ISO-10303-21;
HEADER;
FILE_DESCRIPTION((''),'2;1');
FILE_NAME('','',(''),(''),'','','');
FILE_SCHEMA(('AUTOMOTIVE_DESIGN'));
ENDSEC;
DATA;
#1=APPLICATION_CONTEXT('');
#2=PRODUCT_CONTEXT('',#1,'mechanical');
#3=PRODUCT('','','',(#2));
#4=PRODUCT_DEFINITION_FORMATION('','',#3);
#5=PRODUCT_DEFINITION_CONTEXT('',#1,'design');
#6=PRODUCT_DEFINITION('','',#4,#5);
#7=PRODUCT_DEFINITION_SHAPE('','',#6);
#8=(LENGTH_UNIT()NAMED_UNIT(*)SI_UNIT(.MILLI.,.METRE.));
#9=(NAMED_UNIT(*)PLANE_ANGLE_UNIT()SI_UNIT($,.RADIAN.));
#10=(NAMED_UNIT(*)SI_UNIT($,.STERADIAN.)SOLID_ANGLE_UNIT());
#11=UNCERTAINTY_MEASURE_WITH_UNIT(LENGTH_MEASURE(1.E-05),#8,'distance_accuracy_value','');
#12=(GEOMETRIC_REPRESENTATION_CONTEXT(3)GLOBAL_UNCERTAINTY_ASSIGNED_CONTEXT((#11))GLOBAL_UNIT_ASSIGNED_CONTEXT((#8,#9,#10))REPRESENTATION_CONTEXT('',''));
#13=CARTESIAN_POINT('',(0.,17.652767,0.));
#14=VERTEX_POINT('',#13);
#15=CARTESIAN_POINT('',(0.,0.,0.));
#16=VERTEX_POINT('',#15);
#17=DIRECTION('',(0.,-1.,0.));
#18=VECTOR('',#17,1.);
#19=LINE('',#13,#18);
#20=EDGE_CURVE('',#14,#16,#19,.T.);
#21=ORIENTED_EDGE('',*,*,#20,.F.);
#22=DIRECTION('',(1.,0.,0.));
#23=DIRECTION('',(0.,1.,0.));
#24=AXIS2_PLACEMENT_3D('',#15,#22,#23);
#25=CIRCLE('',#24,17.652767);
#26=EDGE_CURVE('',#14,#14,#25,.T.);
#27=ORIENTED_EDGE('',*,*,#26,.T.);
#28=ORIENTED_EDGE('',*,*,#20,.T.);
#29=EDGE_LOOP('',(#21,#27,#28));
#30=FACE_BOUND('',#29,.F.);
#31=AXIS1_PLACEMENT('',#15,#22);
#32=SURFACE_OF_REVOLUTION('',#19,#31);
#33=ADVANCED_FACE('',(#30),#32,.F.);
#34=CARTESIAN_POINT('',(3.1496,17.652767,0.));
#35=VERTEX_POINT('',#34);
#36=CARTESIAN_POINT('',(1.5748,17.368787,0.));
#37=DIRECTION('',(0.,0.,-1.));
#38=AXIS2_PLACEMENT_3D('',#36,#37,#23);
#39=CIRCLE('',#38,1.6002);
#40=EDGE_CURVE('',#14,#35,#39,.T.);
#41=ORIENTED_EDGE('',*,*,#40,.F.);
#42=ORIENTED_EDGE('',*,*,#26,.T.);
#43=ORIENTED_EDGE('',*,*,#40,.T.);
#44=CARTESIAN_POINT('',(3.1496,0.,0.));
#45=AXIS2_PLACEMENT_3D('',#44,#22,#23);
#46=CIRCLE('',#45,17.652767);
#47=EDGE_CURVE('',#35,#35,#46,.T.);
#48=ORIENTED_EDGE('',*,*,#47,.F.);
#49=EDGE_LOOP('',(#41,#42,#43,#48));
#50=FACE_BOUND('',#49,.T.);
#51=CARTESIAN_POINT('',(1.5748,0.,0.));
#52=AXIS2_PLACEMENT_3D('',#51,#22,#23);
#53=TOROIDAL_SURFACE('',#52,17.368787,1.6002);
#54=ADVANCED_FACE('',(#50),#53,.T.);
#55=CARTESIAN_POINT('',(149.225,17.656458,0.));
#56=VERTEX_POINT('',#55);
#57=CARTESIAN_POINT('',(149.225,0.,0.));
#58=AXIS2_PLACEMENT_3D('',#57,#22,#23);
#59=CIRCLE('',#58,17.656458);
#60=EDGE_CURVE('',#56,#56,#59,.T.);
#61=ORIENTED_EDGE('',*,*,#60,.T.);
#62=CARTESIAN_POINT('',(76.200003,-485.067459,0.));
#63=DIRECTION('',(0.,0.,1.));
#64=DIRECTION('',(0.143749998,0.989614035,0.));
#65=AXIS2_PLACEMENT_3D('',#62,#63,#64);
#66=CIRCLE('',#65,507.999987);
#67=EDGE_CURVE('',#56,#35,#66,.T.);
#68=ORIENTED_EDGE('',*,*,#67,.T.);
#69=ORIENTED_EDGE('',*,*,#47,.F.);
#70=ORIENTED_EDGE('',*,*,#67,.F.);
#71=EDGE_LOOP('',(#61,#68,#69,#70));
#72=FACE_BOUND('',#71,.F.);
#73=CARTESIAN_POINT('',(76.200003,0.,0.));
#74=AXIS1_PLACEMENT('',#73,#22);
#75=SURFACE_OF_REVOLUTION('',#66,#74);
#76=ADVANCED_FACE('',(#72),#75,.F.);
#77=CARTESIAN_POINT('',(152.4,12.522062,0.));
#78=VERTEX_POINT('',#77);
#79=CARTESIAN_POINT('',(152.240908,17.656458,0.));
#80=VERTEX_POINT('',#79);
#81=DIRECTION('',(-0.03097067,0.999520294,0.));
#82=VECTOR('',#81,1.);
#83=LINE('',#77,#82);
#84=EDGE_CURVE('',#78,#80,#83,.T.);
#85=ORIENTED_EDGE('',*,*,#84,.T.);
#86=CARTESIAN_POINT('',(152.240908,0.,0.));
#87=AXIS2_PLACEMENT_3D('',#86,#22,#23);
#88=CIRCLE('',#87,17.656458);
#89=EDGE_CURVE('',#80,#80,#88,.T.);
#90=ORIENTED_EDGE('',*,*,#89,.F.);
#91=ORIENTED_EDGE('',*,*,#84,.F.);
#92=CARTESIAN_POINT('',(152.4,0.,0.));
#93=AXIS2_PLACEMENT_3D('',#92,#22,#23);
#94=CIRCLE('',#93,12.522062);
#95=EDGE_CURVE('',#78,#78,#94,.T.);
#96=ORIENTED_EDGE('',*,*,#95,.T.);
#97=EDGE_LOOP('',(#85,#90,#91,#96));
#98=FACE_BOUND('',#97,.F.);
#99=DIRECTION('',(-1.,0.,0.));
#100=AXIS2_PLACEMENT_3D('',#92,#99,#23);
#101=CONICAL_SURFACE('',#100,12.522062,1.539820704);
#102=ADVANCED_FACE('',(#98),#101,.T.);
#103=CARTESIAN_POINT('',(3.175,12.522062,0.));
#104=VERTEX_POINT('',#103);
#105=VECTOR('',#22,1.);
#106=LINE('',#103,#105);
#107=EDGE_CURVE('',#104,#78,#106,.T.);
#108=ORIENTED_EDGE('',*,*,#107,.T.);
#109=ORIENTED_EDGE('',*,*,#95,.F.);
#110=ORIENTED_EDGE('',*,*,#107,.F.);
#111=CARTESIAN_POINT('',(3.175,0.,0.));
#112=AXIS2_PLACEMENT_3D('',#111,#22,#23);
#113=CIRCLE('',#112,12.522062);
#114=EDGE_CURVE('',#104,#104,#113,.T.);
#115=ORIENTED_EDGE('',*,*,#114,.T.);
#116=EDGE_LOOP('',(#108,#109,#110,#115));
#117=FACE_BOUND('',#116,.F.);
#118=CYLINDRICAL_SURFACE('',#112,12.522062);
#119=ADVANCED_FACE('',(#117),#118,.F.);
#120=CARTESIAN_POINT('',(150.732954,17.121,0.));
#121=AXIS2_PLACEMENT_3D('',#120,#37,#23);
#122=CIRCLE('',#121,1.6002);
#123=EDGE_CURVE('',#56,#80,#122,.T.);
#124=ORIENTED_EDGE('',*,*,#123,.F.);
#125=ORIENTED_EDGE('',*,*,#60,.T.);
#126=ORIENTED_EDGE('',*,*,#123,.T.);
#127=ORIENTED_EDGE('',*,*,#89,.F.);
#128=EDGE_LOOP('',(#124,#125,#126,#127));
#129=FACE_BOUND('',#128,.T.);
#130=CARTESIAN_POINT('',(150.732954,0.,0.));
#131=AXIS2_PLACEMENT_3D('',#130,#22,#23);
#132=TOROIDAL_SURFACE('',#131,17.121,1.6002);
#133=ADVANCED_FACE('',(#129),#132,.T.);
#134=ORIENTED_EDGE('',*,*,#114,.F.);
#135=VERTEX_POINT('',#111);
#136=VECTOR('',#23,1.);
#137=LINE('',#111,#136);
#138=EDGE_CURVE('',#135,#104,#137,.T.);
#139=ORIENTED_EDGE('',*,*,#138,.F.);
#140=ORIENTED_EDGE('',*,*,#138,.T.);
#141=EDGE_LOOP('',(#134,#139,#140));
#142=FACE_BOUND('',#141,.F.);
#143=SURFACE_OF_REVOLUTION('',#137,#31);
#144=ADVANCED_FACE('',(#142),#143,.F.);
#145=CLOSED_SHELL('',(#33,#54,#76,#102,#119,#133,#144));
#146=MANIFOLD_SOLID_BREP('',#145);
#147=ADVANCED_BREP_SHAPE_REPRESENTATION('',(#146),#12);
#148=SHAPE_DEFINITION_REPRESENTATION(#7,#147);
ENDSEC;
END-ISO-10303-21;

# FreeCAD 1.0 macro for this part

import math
import FreeCAD as App
import Part
import Sketcher

V = App.Vector
Q = App.Units.Quantity

doc = App.newDocument("Part")
body = doc.addObject("PartDesign::Body", "Body")

sketch1 = doc.addObject("Sketcher::SketchObject", "Sketch")
body.addObject(sketch1)
sketch1.AttachmentSupport = (doc.XZ_Plane, [""])
sketch1.MapMode = "FlatFace"
sketch1.addGeometry([
    Part.LineSegment(V(3.175, 0, 0), V(3.175, 12.522062, 0)),
    Part.LineSegment(V(3.175, 12.522062, 0), V(152.4, 12.522062, 0)),
    Part.LineSegment(V(152.4, 12.522062, 0), V(152.240908, 17.656458, 0)),
    Part.ArcOfCircle(Part.Circle(V(150.732954, 17.121, 0), V(0, 0, 1), 1.6002), math.radians(19.549403), math.radians(160.450597)),
    Part.ArcOfCircle(Part.Circle(V(76.200003, -485.067459, 0), V(0, 0, 1), 507.999987), math.radians(81.735099), math.radians(98.267797)),
    Part.ArcOfCircle(Part.Circle(V(1.5748, 17.368787, 0), V(0, 0, 1), 1.6002), math.radians(10.222152), math.radians(169.777848)),
    Part.LineSegment(V(0, 17.652767, 0), V(0, 0, 0)),
    Part.LineSegment(V(0, 0, 0), V(3.175, 0, 0)),
], False)
sketch1.addConstraint([
    Sketcher.Constraint("Coincident", 0, 2, 1, 1),
    Sketcher.Constraint("Coincident", 1, 2, 2, 1),
    Sketcher.Constraint("Coincident", 2, 2, 3, 1),
    Sketcher.Constraint("Coincident", 3, 2, 4, 1),
    Sketcher.Constraint("Coincident", 4, 2, 5, 1),
    Sketcher.Constraint("Coincident", 5, 2, 6, 1),
    Sketcher.Constraint("Coincident", 6, 2, 7, 1),
    Sketcher.Constraint("Coincident", 7, 2, 0, 1),
    Sketcher.Constraint("Vertical", 0),
    Sketcher.Constraint("Horizontal", 1),
    Sketcher.Constraint("Vertical", 6),
    Sketcher.Constraint("Horizontal", 7),
    Sketcher.Constraint("Coincident", 6, 2, -1, 1),
    Sketcher.Constraint("Equal", 3, 5),
    Sketcher.Constraint("Horizontal", 2, 2, 3, 2),
    Sketcher.Constraint("Horizontal", 4, 2, 5, 2),
    Sketcher.Constraint("DistanceX", -1, 1, 4, 3, Q("3.0000001 in")),
    Sketcher.Constraint("DistanceX", -1, 1, 1, 2, Q("6 in")),
    Sketcher.Constraint("Radius", 3, Q("0.063 in")),
    Sketcher.Constraint("DistanceX", 1, 1, 1, 2, Q("5.875 in")),
    Sketcher.Constraint("DistanceX", 0, 2, 3, 2, Q("5.75 in")),
    Sketcher.Constraint("DistanceX", -1, 1, 5, 3, Q("0.062 in")),
    Sketcher.Constraint("Radius", 4, Q("507.999987 mm")),
    Sketcher.Constraint("DistanceY", -1, 1, 3, 3, Q("17.121 mm")),
    Sketcher.Constraint("Distance", 2, Q("5.13686 mm")),
    Sketcher.Constraint("DistanceY", 0, 1, 0, 2, Q("12.522062 mm")),
])

sketch2 = doc.addObject("Sketcher::SketchObject", "Sketch001")
body.addObject(sketch2)
sketch2.AttachmentSupport = (doc.YZ_Plane, [""])
sketch2.MapMode = "FlatFace"
sketch2.addGeometry(Part.Circle(V(0, 0, 0), V(0, 0, 1), 12.626421), False)
sketch2.addConstraint([
    Sketcher.Constraint("Coincident", 0, 3, -1, 1),
    Sketcher.Constraint("Diameter", 0, Q("25.252842 mm")),
])
doc.recompute()

additivepipe = doc.addObject("PartDesign::AdditivePipe", "AdditivePipe")
body.addObject(additivepipe)
additivepipe.Profile = sketch1
additivepipe.Spine = (sketch2, ["Edge1"])

doc.recompute()
